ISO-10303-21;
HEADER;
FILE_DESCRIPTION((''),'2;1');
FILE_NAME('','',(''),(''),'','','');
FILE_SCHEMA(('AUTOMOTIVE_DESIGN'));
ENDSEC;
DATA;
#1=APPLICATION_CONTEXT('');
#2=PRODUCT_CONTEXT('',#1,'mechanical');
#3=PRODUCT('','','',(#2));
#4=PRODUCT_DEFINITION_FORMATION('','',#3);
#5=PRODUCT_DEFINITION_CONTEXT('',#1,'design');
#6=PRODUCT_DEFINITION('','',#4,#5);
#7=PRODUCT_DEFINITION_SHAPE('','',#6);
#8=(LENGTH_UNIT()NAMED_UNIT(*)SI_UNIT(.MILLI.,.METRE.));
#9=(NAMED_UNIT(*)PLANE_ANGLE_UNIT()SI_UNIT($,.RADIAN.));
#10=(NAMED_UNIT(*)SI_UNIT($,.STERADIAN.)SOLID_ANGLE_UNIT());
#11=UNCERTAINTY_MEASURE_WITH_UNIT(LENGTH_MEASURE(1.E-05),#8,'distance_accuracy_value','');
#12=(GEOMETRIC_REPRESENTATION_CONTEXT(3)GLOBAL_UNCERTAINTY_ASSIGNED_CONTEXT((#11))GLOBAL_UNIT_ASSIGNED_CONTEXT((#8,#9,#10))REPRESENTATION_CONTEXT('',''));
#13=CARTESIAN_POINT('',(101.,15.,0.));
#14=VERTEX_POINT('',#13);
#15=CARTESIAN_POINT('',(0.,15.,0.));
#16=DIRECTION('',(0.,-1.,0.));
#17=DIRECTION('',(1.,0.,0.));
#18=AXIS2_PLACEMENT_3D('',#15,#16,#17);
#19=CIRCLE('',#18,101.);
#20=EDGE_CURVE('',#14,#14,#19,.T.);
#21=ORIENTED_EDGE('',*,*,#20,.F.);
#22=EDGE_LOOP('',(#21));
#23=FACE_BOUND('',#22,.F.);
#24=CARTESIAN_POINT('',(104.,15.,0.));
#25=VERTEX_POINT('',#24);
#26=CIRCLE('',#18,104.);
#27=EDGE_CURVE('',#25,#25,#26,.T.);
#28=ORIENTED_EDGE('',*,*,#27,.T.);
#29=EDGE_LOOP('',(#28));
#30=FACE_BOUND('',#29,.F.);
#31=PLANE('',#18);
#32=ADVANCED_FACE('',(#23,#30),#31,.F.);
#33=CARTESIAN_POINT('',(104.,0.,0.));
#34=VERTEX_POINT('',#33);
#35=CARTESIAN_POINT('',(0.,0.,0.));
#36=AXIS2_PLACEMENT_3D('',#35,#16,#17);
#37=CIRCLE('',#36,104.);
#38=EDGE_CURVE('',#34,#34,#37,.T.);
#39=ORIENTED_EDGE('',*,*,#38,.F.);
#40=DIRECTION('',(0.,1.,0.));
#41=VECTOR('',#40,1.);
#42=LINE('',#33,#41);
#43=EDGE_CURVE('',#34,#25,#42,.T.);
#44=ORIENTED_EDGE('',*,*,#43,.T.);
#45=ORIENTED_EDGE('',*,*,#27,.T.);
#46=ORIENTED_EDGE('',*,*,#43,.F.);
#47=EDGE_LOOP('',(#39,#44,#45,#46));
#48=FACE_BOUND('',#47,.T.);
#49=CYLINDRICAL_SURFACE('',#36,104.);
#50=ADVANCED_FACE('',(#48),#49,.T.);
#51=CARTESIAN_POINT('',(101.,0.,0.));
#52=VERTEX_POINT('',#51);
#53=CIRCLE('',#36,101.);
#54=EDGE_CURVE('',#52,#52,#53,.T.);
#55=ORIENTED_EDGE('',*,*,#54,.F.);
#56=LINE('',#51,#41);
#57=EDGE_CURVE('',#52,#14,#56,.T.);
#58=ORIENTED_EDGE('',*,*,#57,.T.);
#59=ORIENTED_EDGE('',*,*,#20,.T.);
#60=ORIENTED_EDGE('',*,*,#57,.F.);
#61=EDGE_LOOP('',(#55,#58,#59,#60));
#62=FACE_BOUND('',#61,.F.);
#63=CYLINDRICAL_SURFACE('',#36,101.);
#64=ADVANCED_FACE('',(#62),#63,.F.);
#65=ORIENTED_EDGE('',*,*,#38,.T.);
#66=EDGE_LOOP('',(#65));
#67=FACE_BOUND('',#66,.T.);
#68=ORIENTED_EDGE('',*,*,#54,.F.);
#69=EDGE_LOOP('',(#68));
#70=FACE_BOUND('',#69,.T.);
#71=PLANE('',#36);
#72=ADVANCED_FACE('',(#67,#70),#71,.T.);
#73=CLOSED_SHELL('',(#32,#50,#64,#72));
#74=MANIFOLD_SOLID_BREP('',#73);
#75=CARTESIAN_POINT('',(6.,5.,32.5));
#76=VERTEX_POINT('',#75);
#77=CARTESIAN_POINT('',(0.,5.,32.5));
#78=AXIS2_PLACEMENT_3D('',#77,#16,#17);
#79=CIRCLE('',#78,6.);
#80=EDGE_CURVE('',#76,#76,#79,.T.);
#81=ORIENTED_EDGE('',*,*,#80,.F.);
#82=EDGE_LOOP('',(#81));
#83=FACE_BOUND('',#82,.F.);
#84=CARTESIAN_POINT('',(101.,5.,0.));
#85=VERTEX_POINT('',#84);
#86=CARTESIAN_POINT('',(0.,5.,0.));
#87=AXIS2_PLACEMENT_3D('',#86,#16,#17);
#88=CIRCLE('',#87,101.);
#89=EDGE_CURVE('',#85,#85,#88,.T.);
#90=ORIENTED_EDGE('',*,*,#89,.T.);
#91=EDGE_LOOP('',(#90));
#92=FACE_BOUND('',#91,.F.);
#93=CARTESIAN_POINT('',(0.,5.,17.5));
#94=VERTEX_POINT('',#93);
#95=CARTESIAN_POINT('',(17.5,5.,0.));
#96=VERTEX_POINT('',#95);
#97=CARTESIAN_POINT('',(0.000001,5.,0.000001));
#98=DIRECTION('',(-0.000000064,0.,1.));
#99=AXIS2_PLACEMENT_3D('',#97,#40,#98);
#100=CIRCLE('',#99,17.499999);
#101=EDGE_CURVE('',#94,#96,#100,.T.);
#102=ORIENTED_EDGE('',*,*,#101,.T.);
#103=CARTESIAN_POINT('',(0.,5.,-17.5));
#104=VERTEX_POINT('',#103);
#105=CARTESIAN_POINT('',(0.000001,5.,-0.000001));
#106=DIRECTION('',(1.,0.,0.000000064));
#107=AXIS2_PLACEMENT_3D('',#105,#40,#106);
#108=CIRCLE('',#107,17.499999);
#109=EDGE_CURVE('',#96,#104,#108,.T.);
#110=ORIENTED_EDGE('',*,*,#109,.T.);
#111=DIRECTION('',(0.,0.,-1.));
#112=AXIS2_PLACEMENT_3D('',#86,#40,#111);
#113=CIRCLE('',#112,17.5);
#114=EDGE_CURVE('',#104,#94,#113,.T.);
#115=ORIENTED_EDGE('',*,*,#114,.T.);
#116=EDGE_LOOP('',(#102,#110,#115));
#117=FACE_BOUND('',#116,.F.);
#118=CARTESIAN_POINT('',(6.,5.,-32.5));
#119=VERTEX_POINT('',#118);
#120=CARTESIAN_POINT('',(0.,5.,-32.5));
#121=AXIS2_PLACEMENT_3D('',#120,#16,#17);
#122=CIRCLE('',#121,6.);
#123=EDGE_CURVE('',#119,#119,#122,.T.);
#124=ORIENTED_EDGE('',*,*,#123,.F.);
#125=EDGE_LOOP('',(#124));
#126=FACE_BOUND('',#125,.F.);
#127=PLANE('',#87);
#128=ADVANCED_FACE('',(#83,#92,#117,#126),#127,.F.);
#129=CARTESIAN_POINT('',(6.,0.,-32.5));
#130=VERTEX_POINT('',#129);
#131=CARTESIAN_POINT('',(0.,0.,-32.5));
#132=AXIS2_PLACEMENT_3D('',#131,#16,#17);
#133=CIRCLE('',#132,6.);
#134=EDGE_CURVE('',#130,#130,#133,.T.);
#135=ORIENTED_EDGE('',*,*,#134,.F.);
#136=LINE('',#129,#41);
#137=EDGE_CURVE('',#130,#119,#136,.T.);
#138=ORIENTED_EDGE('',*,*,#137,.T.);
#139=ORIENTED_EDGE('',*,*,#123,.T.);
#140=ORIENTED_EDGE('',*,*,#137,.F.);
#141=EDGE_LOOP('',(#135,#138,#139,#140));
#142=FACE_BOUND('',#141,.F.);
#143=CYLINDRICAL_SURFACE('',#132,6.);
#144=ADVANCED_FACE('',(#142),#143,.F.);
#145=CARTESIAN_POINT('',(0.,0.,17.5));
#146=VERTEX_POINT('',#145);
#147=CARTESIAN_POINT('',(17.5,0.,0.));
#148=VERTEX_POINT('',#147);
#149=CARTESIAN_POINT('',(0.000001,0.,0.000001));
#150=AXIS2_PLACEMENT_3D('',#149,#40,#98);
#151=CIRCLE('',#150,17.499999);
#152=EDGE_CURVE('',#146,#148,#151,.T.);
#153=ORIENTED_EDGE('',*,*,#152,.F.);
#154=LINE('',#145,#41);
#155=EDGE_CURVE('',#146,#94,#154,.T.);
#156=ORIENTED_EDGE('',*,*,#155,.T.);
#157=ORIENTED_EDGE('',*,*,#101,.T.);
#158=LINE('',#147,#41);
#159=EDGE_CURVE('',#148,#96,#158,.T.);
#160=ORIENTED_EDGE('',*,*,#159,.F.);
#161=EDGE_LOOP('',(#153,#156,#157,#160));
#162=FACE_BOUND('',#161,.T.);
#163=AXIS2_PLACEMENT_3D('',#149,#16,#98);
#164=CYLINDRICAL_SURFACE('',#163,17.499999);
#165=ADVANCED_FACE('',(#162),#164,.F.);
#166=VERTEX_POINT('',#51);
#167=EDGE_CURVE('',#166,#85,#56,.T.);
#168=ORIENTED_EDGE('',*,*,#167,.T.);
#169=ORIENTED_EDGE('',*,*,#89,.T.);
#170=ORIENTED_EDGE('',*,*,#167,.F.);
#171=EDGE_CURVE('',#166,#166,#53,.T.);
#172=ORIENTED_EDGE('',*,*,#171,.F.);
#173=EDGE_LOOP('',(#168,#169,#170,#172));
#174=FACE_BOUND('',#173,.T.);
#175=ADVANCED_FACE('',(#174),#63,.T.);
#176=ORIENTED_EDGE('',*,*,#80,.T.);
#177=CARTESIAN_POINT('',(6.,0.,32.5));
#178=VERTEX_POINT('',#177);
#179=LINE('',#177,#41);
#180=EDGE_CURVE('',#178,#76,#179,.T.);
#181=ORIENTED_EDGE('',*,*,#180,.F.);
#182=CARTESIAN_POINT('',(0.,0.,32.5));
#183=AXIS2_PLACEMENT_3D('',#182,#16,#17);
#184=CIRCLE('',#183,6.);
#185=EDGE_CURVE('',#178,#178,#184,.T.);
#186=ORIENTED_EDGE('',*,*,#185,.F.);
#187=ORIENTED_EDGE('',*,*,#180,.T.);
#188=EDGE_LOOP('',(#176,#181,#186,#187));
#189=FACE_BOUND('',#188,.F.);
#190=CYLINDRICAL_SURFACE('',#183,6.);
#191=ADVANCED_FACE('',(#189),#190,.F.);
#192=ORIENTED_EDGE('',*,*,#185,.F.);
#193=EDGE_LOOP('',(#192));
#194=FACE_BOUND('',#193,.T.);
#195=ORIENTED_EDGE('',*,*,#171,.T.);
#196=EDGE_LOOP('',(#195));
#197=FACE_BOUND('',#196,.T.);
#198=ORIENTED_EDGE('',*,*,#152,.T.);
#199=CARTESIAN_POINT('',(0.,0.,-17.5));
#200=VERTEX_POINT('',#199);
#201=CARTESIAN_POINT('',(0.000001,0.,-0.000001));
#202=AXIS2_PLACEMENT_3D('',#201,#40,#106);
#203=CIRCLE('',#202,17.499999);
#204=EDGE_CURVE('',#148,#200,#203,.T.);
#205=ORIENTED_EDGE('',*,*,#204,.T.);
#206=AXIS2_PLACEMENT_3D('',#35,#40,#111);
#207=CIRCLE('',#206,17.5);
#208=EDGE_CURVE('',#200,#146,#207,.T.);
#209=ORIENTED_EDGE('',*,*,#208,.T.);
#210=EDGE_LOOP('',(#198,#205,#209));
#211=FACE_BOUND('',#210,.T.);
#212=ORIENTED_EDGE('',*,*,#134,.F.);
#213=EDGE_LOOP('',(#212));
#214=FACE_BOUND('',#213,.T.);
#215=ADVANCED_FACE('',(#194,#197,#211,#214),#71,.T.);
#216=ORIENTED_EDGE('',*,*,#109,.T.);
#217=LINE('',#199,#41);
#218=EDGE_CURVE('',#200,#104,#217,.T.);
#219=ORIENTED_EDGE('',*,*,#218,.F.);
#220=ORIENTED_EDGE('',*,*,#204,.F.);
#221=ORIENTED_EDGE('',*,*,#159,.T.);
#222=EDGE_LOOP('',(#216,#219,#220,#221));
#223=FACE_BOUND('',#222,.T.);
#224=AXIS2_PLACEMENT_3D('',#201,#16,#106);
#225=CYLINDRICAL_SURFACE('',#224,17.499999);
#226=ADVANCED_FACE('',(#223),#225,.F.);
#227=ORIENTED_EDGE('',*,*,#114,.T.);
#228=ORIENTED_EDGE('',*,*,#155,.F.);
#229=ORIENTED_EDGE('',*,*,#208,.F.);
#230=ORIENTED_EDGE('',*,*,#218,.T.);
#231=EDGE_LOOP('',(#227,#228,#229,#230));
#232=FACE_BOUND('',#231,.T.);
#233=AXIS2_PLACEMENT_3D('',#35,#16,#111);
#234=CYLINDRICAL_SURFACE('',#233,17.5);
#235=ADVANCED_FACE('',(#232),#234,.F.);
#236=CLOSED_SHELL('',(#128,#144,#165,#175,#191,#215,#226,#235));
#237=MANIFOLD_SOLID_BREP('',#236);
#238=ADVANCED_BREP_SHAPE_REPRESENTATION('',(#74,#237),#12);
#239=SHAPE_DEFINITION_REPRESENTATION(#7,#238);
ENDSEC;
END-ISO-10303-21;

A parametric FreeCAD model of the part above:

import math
import FreeCAD as App
import Part
import Sketcher
from FreeCAD import Vector

doc = App.newDocument("Part")
body = doc.addObject("PartDesign::Body", "Body")

sketch1 = body.newObject("Sketcher::SketchObject", "Sketch")
sketch1.AttachmentSupport = (doc.getObject("XZ_Plane"), [""])
sketch1.MapMode = "FlatFace"
sketch1.addGeometry([
    Part.Circle(Vector(0, 0, 0), Vector(0, 0, 1), 101),
    Part.Circle(Vector(0, -32, 0), Vector(0, 0, 1), 6),
    Part.Circle(Vector(0, 32, 0), Vector(0, 0, 1), 6),
    Part.ArcOfCircle(Part.Circle(Vector(0, 0, 0), Vector(0, 0, 1), 17), math.radians(-90), math.radians(0)),
    Part.ArcOfCircle(Part.Circle(Vector(0, 0, 0), Vector(0, 0, 1), 18), math.radians(90), math.radians(270)),
    Part.ArcOfCircle(Part.Circle(Vector(0, 0, 0), Vector(0, 0, 1), 17), math.radians(0), math.radians(90)),
], False)
sketch1.addConstraint([
    Sketcher.Constraint("Tangent", 3, 1, 4, 2),
    Sketcher.Constraint("Tangent", 4, 1, 5, 2),
    Sketcher.Constraint("Tangent", 5, 1, 3, 2),
    Sketcher.Constraint("Coincident", 0, 3, -1, 1),
    Sketcher.Constraint("Coincident", 3, 3, -1, 1),
    Sketcher.Constraint("Equal", 1, 2),
    Sketcher.Constraint("Symmetric", 1, 3, 2, 3, -1, 1),
    Sketcher.Constraint("PointOnObject", 1, 3, -2),
    Sketcher.Constraint("PointOnObject", 3, 1, -2),
    Sketcher.Constraint("PointOnObject", 4, 1, -2),
    Sketcher.Constraint("PointOnObject", 5, 1, -1),
    Sketcher.Constraint("Diameter", 0, 202.0),
    Sketcher.Constraint("Diameter", 1, 12.0),
    Sketcher.Constraint("Radius", 3, 17.499999),
    Sketcher.Constraint("DistanceY", 1, 3, 2, 3, 65.0),
])
pad1 = body.newObject("PartDesign::Pad", "Pad")
pad1.Profile = sketch1
pad1.Length = 5
pad1.Reversed = True
body2 = doc.addObject("PartDesign::Body", "Body001")

sketch2 = body2.newObject("Sketcher::SketchObject", "Sketch001")
sketch2.AttachmentSupport = (doc.getObject("XZ_Plane001"), [""])
sketch2.MapMode = "FlatFace"
sketch2.addGeometry([
    Part.Circle(Vector(0, 0, 0), Vector(0, 0, 1), 104),
    Part.Circle(Vector(0, 0, 0), Vector(0, 0, 1), 101),
], False)
sketch2.addConstraint([
    Sketcher.Constraint("Coincident", 0, 3, -1, 1),
    Sketcher.Constraint("Coincident", 1, 3, -1, 1),
    Sketcher.Constraint("Diameter", 0, 208.0),
    Sketcher.Constraint("Diameter", 1, 202.0),
])
pad2 = body2.newObject("PartDesign::Pad", "Pad001")
pad2.Profile = sketch2
pad2.Length = 15
pad2.Reversed = True

doc.recompute()
